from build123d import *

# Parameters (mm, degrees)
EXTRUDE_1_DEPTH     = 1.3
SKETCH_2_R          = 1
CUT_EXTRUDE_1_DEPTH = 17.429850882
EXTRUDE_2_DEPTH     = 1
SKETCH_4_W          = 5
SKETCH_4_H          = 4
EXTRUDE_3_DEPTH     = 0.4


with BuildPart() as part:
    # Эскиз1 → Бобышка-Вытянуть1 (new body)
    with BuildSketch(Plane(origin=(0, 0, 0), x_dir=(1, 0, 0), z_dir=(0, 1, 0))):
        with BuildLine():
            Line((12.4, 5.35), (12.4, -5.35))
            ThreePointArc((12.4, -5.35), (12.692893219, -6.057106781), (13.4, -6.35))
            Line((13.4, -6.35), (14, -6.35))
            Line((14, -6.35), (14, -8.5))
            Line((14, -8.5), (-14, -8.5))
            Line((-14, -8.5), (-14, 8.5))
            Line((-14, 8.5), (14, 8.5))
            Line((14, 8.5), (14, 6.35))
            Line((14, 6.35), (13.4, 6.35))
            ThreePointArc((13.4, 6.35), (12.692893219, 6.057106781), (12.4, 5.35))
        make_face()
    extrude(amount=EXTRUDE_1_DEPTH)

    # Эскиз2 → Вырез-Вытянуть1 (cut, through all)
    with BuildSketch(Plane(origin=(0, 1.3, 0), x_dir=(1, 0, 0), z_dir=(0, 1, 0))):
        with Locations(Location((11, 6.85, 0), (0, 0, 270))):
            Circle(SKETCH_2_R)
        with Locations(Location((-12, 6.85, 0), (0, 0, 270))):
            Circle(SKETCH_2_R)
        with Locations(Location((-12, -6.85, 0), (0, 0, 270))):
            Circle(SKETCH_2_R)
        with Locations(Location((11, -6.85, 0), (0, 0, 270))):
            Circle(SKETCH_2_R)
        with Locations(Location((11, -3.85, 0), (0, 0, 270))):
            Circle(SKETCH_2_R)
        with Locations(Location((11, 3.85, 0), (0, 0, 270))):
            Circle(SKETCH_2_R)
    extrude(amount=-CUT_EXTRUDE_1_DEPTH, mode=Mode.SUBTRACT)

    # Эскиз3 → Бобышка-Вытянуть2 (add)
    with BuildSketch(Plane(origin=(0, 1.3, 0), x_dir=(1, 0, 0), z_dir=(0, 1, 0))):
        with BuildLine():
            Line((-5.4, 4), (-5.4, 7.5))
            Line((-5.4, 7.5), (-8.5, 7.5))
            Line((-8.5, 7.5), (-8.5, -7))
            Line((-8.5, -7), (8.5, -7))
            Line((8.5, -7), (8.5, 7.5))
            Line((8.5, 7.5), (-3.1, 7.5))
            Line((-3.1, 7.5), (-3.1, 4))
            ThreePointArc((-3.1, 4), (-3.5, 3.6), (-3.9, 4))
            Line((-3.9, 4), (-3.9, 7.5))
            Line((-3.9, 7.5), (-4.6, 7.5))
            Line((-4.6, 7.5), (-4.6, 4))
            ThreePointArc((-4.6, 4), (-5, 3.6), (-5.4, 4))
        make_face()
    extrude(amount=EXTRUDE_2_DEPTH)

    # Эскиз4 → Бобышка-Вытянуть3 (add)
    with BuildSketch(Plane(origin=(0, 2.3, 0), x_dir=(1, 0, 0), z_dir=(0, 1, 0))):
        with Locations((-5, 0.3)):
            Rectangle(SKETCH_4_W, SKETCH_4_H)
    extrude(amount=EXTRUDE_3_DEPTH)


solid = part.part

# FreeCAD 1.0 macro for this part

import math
import FreeCAD as App
import Part
import Sketcher

V = App.Vector
Q = App.Units.Quantity


def add_polygon(sketch, points):
    """Adds a closed chain of lines whose ends are joined by coincident constraints."""
    first, n = sketch.GeometryCount, len(points)
    for a, b in zip(points, points[1:] + points[:1]):
        sketch.addGeometry(Part.LineSegment(App.Vector(*a, 0), App.Vector(*b, 0)), False)
    for i in range(n):
        sketch.addConstraint(Sketcher.Constraint("Coincident", first + i, 2, first + (i + 1) % n, 1))

doc = App.newDocument("Part")
body = doc.addObject("PartDesign::Body", "Body")

sketch1 = doc.addObject("Sketcher::SketchObject", "Sketch")
body.addObject(sketch1)
sketch1.AttachmentSupport = (doc.XZ_Plane, [""])
sketch1.MapMode = "FlatFace"
sketch1.addGeometry(Part.LineSegment(V(12.4, 5.3, 0), V(12.4, -5.3, 0)), False)
sketch1.addGeometry(Part.ArcOfCircle(Part.Circle(V(13.4, -5.3, 0), V(0, 0, 1), 1), math.radians(-180), math.radians(-90)), False)
sketch1.addGeometry(Part.LineSegment(V(13.4, -6.3, 0), V(14, -6.3, 0)), False)
sketch1.addGeometry(Part.LineSegment(V(14, -6.3, 0), V(14, -8.5, 0)), False)
sketch1.addGeometry(Part.LineSegment(V(14, -8.5, 0), V(-14, -8.5, 0)), False)
sketch1.addGeometry(Part.LineSegment(V(-14, -8.5, 0), V(-14, 8.5, 0)), False)
sketch1.addGeometry(Part.LineSegment(V(-14, 8.5, 0), V(14, 8.5, 0)), False)
sketch1.addGeometry(Part.LineSegment(V(14, 8.5, 0), V(14, 6.3, 0)), False)
sketch1.addGeometry(Part.LineSegment(V(14, 6.3, 0), V(13.4, 6.3, 0)), False)
sketch1.addGeometry(Part.ArcOfCircle(Part.Circle(V(13.4, 5.3, 0), V(0, 0, 1), 1), math.radians(90), math.radians(180)), False)
sketch1.addConstraint(Sketcher.Constraint("Tangent", 0, 2, 1, 1))
sketch1.addConstraint(Sketcher.Constraint("Tangent", 1, 2, 2, 1))
sketch1.addConstraint(Sketcher.Constraint("Coincident", 2, 2, 3, 1))
sketch1.addConstraint(Sketcher.Constraint("Coincident", 3, 2, 4, 1))
sketch1.addConstraint(Sketcher.Constraint("Coincident", 4, 2, 5, 1))
sketch1.addConstraint(Sketcher.Constraint("Coincident", 5, 2, 6, 1))
sketch1.addConstraint(Sketcher.Constraint("Coincident", 6, 2, 7, 1))
sketch1.addConstraint(Sketcher.Constraint("Coincident", 7, 2, 8, 1))
sketch1.addConstraint(Sketcher.Constraint("Tangent", 8, 2, 9, 1))
sketch1.addConstraint(Sketcher.Constraint("Tangent", 9, 2, 0, 1))
sketch1.addConstraint(Sketcher.Constraint("Vertical", 0))
sketch1.addConstraint(Sketcher.Constraint("Horizontal", 2))
sketch1.addConstraint(Sketcher.Constraint("Vertical", 3))
sketch1.addConstraint(Sketcher.Constraint("Horizontal", 4))
sketch1.addConstraint(Sketcher.Constraint("Vertical", 5))
sketch1.addConstraint(Sketcher.Constraint("Horizontal", 6))
sketch1.addConstraint(Sketcher.Constraint("Vertical", 7))
sketch1.addConstraint(Sketcher.Constraint("Horizontal", 8))
sketch1.addConstraint(Sketcher.Constraint("Equal", 1, 9))
sketch1.addConstraint(Sketcher.Constraint("Symmetric", 3, 2, 5, 2, -1, 1))
sketch1.addConstraint(Sketcher.Constraint("Symmetric", 2, 2, 7, 2, -1))
sketch1.addConstraint(Sketcher.Constraint("Radius", 1, Q("1 mm")))
sketch1.addConstraint(Sketcher.Constraint("DistanceX", 4, 2, 4, 1, Q("28 mm")))
sketch1.addConstraint(Sketcher.Constraint("DistanceY", 5, 1, 5, 2, Q("17 mm")))
sketch1.addConstraint(Sketcher.Constraint("DistanceX", 2, 1, 2, 2, Q("0.6 mm")))
sketch1.addConstraint(Sketcher.Constraint("DistanceY", 0, 2, 0, 1, Q("10.7 mm")))
pad1 = doc.addObject("PartDesign::Pad", "Pad")
body.addObject(pad1)
pad1.Profile = sketch1
pad1.Length = 1.3
pad1.Reversed = True

sketch2 = doc.addObject("Sketcher::SketchObject", "Sketch001")
body.addObject(sketch2)
sketch2.AttachmentSupport = (doc.XZ_Plane, [""])
sketch2.MapMode = "FlatFace"
sketch2.AttachmentOffset = App.Placement(V(0, 0, -1.3), App.Rotation())
sketch2.addGeometry(Part.Circle(V(11, -6.8, 0), V(0, 0, 1), 1), False)
sketch2.addGeometry(Part.Circle(V(-12, -6.8, 0), V(0, 0, 1), 1), False)
sketch2.addGeometry(Part.Circle(V(-12, 6.8, 0), V(0, 0, 1), 1), False)
sketch2.addGeometry(Part.Circle(V(11, 6.8, 0), V(0, 0, 1), 1), False)
sketch2.addGeometry(Part.Circle(V(11, 3.9, 0), V(0, 0, 1), 1), False)
sketch2.addGeometry(Part.Circle(V(11, -3.9, 0), V(0, 0, 1), 1), False)
sketch2.addConstraint(Sketcher.Constraint("Equal", 0, 1))
sketch2.addConstraint(Sketcher.Constraint("Equal", 1, 2))
sketch2.addConstraint(Sketcher.Constraint("Equal", 2, 3))
sketch2.addConstraint(Sketcher.Constraint("Equal", 3, 4))
sketch2.addConstraint(Sketcher.Constraint("Equal", 4, 5))
sketch2.addConstraint(Sketcher.Constraint("Symmetric", 1, 3, 2, 3, -1))
sketch2.addConstraint(Sketcher.Constraint("Symmetric", 0, 3, 3, 3, -1))
sketch2.addConstraint(Sketcher.Constraint("Symmetric", 4, 3, 5, 3, -1))
sketch2.addConstraint(Sketcher.Constraint("Horizontal", 0, 3, 1, 3))
sketch2.addConstraint(Sketcher.Constraint("Vertical", 3, 3, 4, 3))
sketch2.addConstraint(Sketcher.Constraint("Diameter", 0, Q("2 mm")))
sketch2.addConstraint(Sketcher.Constraint("DistanceX", -1, 1, 0, 3, Q("11 mm")))
sketch2.addConstraint(Sketcher.Constraint("DistanceX", 1, 3, -1, 1, Q("12 mm")))
sketch2.addConstraint(Sketcher.Constraint("DistanceY", 4, 3, 3, 3, Q("3 mm")))
sketch2.addConstraint(Sketcher.Constraint("DistanceY", 1, 3, 2, 3, Q("13.7 mm")))
pocket1 = doc.addObject("PartDesign::Pocket", "Pocket")
body.addObject(pocket1)
pocket1.Profile = sketch2
pocket1.Type = "ThroughAll"
pocket1.Reversed = True

sketch3 = doc.addObject("Sketcher::SketchObject", "Sketch002")
body.addObject(sketch3)
sketch3.AttachmentSupport = (doc.XZ_Plane, [""])
sketch3.MapMode = "FlatFace"
sketch3.AttachmentOffset = App.Placement(V(0, 0, -1.3), App.Rotation())
sketch3.addGeometry(Part.LineSegment(V(-5.4, -4, 0), V(-5.4, -7.5, 0)), False)
sketch3.addGeometry(Part.LineSegment(V(-5.4, -7.5, 0), V(-8.5, -7.5, 0)), False)
sketch3.addGeometry(Part.LineSegment(V(-8.5, -7.5, 0), V(-8.5, 7, 0)), False)
sketch3.addGeometry(Part.LineSegment(V(-8.5, 7, 0), V(8.5, 7, 0)), False)
sketch3.addGeometry(Part.LineSegment(V(8.5, 7, 0), V(8.5, -7.5, 0)), False)
sketch3.addGeometry(Part.LineSegment(V(8.5, -7.5, 0), V(-3.1, -7.5, 0)), False)
sketch3.addGeometry(Part.LineSegment(V(-3.1, -7.5, 0), V(-3.1, -4, 0)), False)
sketch3.addGeometry(Part.ArcOfCircle(Part.Circle(V(-3.5, -4, 0), V(0, 0, 1), 0.4), math.radians(0), math.radians(180)), False)
sketch3.addGeometry(Part.LineSegment(V(-3.9, -4, 0), V(-3.9, -7.5, 0)), False)
sketch3.addGeometry(Part.LineSegment(V(-3.9, -7.5, 0), V(-4.6, -7.5, 0)), False)
sketch3.addGeometry(Part.LineSegment(V(-4.6, -7.5, 0), V(-4.6, -4, 0)), False)
sketch3.addGeometry(Part.ArcOfCircle(Part.Circle(V(-5, -4, 0), V(0, 0, 1), 0.4), math.radians(0), math.radians(180)), False)
sketch3.addConstraint(Sketcher.Constraint("Coincident", 0, 2, 1, 1))
sketch3.addConstraint(Sketcher.Constraint("Coincident", 1, 2, 2, 1))
sketch3.addConstraint(Sketcher.Constraint("Coincident", 2, 2, 3, 1))
sketch3.addConstraint(Sketcher.Constraint("Coincident", 3, 2, 4, 1))
sketch3.addConstraint(Sketcher.Constraint("Coincident", 4, 2, 5, 1))
sketch3.addConstraint(Sketcher.Constraint("Coincident", 5, 2, 6, 1))
sketch3.addConstraint(Sketcher.Constraint("Tangent", 6, 2, 7, 1))
sketch3.addConstraint(Sketcher.Constraint("Tangent", 7, 2, 8, 1))
sketch3.addConstraint(Sketcher.Constraint("Coincident", 8, 2, 9, 1))
sketch3.addConstraint(Sketcher.Constraint("Coincident", 9, 2, 10, 1))
sketch3.addConstraint(Sketcher.Constraint("Tangent", 10, 2, 11, 1))
sketch3.addConstraint(Sketcher.Constraint("Tangent", 11, 2, 0, 1))
sketch3.addConstraint(Sketcher.Constraint("Vertical", 0))
sketch3.addConstraint(Sketcher.Constraint("Horizontal", 1))
sketch3.addConstraint(Sketcher.Constraint("Vertical", 2))
sketch3.addConstraint(Sketcher.Constraint("Horizontal", 3))
sketch3.addConstraint(Sketcher.Constraint("Vertical", 4))
sketch3.addConstraint(Sketcher.Constraint("Horizontal", 5))
sketch3.addConstraint(Sketcher.Constraint("Vertical", 6))
sketch3.addConstraint(Sketcher.Constraint("Vertical", 8))
sketch3.addConstraint(Sketcher.Constraint("Horizontal", 9))
sketch3.addConstraint(Sketcher.Constraint("Vertical", 10))
sketch3.addConstraint(Sketcher.Constraint("Equal", 7, 11))
sketch3.addConstraint(Sketcher.Constraint("Symmetric", 1, 2, 4, 2, -2))
sketch3.addConstraint(Sketcher.Constraint("Horizontal", 7, 3, 11, 3))
sketch3.addConstraint(Sketcher.Constraint("Horizontal", 5, 2, 8, 2))
sketch3.addConstraint(Sketcher.Constraint("Radius", 7, Q("0.4 mm")))
sketch3.addConstraint(Sketcher.Constraint("DistanceX", 3, 1, 3, 2, Q("17 mm")))
sketch3.addConstraint(Sketcher.Constraint("DistanceX", 1, 2, 1, 1, Q("3.1 mm")))
sketch3.addConstraint(Sketcher.Constraint("DistanceX", 5, 2, 5, 1, Q("11.6 mm")))
sketch3.addConstraint(Sketcher.Constraint("DistanceY", 0, 2, 0, 1, Q("3.5 mm")))
sketch3.addConstraint(Sketcher.Constraint("DistanceY", 2, 1, 2, 2, Q("14.5 mm")))
sketch3.addConstraint(Sketcher.Constraint("DistanceY", 7, 3, -1, 1, Q("4 mm")))
pad2 = doc.addObject("PartDesign::Pad", "Pad001")
body.addObject(pad2)
pad2.Profile = sketch3
pad2.Length = 1
pad2.Reversed = True

sketch4 = doc.addObject("Sketcher::SketchObject", "Sketch003")
body.addObject(sketch4)
sketch4.AttachmentSupport = (doc.XZ_Plane, [""])
sketch4.MapMode = "FlatFace"
sketch4.AttachmentOffset = App.Placement(V(0, 0, -2.3), App.Rotation())
add_polygon(sketch4, [(-7.5, -2.3), (-7.5, 1.7), (-2.5, 1.7), (-2.5, -2.3)])
sketch4.addConstraint(Sketcher.Constraint("Vertical", 0))
sketch4.addConstraint(Sketcher.Constraint("Horizontal", 1))
sketch4.addConstraint(Sketcher.Constraint("Vertical", 2))
sketch4.addConstraint(Sketcher.Constraint("Horizontal", 3))
sketch4.addConstraint(Sketcher.Constraint("DistanceX", 1, 1, 1, 2, Q("5 mm")))
sketch4.addConstraint(Sketcher.Constraint("DistanceY", 0, 1, 0, 2, Q("4 mm")))
sketch4.addConstraint(Sketcher.Constraint("DistanceX", 0, 2, -1, 1, Q("7.5 mm")))
sketch4.addConstraint(Sketcher.Constraint("DistanceY", -1, 1, 0, 2, Q("1.7 mm")))
pad3 = doc.addObject("PartDesign::Pad", "Pad002")
body.addObject(pad3)
pad3.Profile = sketch4
pad3.Length = 0.4
pad3.Reversed = True

doc.recompute()
